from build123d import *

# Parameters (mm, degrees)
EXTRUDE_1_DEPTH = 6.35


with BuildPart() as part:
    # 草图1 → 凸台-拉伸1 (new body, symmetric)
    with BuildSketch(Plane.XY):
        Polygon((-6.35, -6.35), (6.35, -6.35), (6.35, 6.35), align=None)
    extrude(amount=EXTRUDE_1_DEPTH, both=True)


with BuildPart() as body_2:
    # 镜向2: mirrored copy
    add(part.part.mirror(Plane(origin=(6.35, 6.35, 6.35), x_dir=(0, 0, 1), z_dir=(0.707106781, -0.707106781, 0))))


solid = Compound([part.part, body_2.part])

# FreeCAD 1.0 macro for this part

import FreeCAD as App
import Part
import Sketcher

V = App.Vector
Q = App.Units.Quantity


def add_polygon(sketch, points):
    """Adds a closed chain of lines whose ends are joined by coincident constraints."""
    first, n = sketch.GeometryCount, len(points)
    for a, b in zip(points, points[1:] + points[:1]):
        sketch.addGeometry(Part.LineSegment(App.Vector(*a, 0), App.Vector(*b, 0)), False)
    for i in range(n):
        sketch.addConstraint(Sketcher.Constraint("Coincident", first + i, 2, first + (i + 1) % n, 1))

doc = App.newDocument("Part")
body = doc.addObject("PartDesign::Body", "Body")

# Sketch on XY plane
sketch1 = body.newObject("Sketcher::SketchObject", "Sketch")
sketch1.AttachmentSupport = (doc.getObject("XY_Plane"), [""])
sketch1.MapMode = "FlatFace"
add_polygon(sketch1, [(-6, -6), (6, -6), (6, 6)])  # lines 0-2
sketch1.addConstraint([
    Sketcher.Constraint("Horizontal", 0),
    Sketcher.Constraint("Vertical", 1),
    Sketcher.Constraint("Symmetric", 1, 2, 2, 2, -1, 1),
    Sketcher.Constraint("Equal", 0, 1),
    Sketcher.Constraint("DistanceX", 0, 1, 0, 2, Q("0.5 in")),
])
pad1 = body.newObject("PartDesign::Pad", "Pad")
pad1.Profile = sketch1
pad1.Length = Q("0.5 in")
pad1.Midplane = True
body2 = doc.addObject("PartDesign::Body", "Body001")
doc.recompute()

mirroring = doc.addObject("Part::Mirroring", "Mirroring")
mirroring.Source = body
mirroring.Base = V(6.35, 6.35, 6.35)
mirroring.Normal = V(0.707106781, -0.707106781, 0)
body2.BaseFeature = mirroring
doc.recompute()
mirroring.Visibility = False

doc.recompute()
